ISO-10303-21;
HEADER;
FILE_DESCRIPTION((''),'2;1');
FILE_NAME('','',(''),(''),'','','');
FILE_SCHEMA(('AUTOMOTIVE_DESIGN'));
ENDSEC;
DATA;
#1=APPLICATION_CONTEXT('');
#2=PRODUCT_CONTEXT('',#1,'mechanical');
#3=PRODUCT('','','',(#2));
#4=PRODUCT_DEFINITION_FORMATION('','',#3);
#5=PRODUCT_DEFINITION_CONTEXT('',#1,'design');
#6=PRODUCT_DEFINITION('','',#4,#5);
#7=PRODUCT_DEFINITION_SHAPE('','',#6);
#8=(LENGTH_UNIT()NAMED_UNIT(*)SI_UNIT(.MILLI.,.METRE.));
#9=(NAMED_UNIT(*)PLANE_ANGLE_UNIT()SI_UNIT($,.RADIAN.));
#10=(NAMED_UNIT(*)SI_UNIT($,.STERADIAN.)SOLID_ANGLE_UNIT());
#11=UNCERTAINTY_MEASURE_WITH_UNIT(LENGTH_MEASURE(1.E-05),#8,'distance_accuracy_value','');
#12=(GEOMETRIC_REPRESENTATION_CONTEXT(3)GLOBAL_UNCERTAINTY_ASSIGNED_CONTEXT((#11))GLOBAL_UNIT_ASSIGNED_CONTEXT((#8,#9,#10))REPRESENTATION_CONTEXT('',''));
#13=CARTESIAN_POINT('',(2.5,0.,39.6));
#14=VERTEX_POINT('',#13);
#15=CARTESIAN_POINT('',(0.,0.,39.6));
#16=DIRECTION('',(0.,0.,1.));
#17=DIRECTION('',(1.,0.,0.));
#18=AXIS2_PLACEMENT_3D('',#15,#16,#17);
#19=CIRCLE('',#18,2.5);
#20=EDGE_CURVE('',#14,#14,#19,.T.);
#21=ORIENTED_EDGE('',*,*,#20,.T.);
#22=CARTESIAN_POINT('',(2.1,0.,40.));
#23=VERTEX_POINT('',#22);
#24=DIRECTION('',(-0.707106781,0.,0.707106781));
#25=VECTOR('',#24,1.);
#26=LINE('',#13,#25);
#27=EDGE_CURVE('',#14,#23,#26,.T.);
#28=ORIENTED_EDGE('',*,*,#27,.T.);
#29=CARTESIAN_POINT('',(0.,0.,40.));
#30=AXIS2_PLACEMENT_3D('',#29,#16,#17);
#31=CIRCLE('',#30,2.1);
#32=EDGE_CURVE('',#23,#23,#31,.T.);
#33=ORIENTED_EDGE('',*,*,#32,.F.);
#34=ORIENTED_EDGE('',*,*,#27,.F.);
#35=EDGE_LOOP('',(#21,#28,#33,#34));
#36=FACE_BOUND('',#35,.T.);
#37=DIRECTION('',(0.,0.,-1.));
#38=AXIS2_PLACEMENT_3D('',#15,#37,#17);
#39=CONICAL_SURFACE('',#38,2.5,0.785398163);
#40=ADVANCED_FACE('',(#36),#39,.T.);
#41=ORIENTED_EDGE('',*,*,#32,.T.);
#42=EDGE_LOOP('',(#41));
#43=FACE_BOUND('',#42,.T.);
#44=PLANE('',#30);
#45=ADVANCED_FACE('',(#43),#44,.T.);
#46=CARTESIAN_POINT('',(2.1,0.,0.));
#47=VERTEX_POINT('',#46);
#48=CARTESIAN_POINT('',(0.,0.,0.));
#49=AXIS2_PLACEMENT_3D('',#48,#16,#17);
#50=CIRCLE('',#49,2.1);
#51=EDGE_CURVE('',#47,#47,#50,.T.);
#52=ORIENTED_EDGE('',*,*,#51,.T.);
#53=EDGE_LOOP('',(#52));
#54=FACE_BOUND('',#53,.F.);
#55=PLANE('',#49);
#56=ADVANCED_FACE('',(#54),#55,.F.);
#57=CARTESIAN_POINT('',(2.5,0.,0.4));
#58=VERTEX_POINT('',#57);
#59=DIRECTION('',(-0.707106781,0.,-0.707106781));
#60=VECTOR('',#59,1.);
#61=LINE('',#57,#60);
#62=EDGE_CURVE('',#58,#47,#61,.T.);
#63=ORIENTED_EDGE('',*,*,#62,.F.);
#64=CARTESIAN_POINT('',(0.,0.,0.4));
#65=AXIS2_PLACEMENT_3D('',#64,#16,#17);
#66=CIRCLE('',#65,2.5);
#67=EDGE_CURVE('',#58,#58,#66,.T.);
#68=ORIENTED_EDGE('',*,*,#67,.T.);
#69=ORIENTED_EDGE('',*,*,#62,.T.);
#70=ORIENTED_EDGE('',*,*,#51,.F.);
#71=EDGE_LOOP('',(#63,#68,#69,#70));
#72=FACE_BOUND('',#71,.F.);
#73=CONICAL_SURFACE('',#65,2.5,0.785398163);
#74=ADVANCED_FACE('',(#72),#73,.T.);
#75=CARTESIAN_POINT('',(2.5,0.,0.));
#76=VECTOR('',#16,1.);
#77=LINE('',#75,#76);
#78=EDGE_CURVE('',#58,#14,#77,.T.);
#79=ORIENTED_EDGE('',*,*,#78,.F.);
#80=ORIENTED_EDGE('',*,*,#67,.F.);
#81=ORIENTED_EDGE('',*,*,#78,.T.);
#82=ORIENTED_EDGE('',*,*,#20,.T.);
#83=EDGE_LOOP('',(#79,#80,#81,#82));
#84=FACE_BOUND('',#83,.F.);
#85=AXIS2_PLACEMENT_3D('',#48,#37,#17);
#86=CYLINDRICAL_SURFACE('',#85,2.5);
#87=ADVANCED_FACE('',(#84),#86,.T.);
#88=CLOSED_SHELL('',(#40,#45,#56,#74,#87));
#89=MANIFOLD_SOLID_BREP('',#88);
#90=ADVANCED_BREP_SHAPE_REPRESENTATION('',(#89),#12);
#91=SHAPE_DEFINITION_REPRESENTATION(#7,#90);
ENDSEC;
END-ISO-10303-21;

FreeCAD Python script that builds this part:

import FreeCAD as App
import Part
import Sketcher
from FreeCAD import Vector
Q = App.Units.Quantity


def edges_at(feature, points):
    """Names of the edges that pass closest to the given points."""
    edges = feature.Shape.Edges
    near = lambda p: min(range(len(edges)), key=lambda i: edges[i].distToShape(Part.Vertex(*p))[0])
    return sorted({f"Edge{near(p) + 1}" for p in points})

doc = App.newDocument("Part")
body = doc.addObject("PartDesign::Body", "Body")

# Sketch on XY plane
sketch1 = body.newObject("Sketcher::SketchObject", "Sketch")
sketch1.AttachmentSupport = (doc.getObject("XY_Plane"), [""])
sketch1.MapMode = "FlatFace"
sketch1.addGeometry(Part.Circle(Vector(0, 0, 0), Vector(0, 0, 1), 2.5), False)
sketch1.addConstraint([
    Sketcher.Constraint("Coincident", 0, 3, -1, 1),
    Sketcher.Constraint("Diameter", 0, Q("5 mm")),
])
pad1 = body.newObject("PartDesign::Pad", "Pad")
pad1.Profile = sketch1
pad1.Length = 40
doc.recompute()

chamfer = body.newObject("PartDesign::Chamfer", "Chamfer")
chamfer.Base = (pad1, edges_at(pad1, [(-2.5, 0, 40), (-2.5, 0, 0)]))
chamfer.Size = 0.4

doc.recompute()
